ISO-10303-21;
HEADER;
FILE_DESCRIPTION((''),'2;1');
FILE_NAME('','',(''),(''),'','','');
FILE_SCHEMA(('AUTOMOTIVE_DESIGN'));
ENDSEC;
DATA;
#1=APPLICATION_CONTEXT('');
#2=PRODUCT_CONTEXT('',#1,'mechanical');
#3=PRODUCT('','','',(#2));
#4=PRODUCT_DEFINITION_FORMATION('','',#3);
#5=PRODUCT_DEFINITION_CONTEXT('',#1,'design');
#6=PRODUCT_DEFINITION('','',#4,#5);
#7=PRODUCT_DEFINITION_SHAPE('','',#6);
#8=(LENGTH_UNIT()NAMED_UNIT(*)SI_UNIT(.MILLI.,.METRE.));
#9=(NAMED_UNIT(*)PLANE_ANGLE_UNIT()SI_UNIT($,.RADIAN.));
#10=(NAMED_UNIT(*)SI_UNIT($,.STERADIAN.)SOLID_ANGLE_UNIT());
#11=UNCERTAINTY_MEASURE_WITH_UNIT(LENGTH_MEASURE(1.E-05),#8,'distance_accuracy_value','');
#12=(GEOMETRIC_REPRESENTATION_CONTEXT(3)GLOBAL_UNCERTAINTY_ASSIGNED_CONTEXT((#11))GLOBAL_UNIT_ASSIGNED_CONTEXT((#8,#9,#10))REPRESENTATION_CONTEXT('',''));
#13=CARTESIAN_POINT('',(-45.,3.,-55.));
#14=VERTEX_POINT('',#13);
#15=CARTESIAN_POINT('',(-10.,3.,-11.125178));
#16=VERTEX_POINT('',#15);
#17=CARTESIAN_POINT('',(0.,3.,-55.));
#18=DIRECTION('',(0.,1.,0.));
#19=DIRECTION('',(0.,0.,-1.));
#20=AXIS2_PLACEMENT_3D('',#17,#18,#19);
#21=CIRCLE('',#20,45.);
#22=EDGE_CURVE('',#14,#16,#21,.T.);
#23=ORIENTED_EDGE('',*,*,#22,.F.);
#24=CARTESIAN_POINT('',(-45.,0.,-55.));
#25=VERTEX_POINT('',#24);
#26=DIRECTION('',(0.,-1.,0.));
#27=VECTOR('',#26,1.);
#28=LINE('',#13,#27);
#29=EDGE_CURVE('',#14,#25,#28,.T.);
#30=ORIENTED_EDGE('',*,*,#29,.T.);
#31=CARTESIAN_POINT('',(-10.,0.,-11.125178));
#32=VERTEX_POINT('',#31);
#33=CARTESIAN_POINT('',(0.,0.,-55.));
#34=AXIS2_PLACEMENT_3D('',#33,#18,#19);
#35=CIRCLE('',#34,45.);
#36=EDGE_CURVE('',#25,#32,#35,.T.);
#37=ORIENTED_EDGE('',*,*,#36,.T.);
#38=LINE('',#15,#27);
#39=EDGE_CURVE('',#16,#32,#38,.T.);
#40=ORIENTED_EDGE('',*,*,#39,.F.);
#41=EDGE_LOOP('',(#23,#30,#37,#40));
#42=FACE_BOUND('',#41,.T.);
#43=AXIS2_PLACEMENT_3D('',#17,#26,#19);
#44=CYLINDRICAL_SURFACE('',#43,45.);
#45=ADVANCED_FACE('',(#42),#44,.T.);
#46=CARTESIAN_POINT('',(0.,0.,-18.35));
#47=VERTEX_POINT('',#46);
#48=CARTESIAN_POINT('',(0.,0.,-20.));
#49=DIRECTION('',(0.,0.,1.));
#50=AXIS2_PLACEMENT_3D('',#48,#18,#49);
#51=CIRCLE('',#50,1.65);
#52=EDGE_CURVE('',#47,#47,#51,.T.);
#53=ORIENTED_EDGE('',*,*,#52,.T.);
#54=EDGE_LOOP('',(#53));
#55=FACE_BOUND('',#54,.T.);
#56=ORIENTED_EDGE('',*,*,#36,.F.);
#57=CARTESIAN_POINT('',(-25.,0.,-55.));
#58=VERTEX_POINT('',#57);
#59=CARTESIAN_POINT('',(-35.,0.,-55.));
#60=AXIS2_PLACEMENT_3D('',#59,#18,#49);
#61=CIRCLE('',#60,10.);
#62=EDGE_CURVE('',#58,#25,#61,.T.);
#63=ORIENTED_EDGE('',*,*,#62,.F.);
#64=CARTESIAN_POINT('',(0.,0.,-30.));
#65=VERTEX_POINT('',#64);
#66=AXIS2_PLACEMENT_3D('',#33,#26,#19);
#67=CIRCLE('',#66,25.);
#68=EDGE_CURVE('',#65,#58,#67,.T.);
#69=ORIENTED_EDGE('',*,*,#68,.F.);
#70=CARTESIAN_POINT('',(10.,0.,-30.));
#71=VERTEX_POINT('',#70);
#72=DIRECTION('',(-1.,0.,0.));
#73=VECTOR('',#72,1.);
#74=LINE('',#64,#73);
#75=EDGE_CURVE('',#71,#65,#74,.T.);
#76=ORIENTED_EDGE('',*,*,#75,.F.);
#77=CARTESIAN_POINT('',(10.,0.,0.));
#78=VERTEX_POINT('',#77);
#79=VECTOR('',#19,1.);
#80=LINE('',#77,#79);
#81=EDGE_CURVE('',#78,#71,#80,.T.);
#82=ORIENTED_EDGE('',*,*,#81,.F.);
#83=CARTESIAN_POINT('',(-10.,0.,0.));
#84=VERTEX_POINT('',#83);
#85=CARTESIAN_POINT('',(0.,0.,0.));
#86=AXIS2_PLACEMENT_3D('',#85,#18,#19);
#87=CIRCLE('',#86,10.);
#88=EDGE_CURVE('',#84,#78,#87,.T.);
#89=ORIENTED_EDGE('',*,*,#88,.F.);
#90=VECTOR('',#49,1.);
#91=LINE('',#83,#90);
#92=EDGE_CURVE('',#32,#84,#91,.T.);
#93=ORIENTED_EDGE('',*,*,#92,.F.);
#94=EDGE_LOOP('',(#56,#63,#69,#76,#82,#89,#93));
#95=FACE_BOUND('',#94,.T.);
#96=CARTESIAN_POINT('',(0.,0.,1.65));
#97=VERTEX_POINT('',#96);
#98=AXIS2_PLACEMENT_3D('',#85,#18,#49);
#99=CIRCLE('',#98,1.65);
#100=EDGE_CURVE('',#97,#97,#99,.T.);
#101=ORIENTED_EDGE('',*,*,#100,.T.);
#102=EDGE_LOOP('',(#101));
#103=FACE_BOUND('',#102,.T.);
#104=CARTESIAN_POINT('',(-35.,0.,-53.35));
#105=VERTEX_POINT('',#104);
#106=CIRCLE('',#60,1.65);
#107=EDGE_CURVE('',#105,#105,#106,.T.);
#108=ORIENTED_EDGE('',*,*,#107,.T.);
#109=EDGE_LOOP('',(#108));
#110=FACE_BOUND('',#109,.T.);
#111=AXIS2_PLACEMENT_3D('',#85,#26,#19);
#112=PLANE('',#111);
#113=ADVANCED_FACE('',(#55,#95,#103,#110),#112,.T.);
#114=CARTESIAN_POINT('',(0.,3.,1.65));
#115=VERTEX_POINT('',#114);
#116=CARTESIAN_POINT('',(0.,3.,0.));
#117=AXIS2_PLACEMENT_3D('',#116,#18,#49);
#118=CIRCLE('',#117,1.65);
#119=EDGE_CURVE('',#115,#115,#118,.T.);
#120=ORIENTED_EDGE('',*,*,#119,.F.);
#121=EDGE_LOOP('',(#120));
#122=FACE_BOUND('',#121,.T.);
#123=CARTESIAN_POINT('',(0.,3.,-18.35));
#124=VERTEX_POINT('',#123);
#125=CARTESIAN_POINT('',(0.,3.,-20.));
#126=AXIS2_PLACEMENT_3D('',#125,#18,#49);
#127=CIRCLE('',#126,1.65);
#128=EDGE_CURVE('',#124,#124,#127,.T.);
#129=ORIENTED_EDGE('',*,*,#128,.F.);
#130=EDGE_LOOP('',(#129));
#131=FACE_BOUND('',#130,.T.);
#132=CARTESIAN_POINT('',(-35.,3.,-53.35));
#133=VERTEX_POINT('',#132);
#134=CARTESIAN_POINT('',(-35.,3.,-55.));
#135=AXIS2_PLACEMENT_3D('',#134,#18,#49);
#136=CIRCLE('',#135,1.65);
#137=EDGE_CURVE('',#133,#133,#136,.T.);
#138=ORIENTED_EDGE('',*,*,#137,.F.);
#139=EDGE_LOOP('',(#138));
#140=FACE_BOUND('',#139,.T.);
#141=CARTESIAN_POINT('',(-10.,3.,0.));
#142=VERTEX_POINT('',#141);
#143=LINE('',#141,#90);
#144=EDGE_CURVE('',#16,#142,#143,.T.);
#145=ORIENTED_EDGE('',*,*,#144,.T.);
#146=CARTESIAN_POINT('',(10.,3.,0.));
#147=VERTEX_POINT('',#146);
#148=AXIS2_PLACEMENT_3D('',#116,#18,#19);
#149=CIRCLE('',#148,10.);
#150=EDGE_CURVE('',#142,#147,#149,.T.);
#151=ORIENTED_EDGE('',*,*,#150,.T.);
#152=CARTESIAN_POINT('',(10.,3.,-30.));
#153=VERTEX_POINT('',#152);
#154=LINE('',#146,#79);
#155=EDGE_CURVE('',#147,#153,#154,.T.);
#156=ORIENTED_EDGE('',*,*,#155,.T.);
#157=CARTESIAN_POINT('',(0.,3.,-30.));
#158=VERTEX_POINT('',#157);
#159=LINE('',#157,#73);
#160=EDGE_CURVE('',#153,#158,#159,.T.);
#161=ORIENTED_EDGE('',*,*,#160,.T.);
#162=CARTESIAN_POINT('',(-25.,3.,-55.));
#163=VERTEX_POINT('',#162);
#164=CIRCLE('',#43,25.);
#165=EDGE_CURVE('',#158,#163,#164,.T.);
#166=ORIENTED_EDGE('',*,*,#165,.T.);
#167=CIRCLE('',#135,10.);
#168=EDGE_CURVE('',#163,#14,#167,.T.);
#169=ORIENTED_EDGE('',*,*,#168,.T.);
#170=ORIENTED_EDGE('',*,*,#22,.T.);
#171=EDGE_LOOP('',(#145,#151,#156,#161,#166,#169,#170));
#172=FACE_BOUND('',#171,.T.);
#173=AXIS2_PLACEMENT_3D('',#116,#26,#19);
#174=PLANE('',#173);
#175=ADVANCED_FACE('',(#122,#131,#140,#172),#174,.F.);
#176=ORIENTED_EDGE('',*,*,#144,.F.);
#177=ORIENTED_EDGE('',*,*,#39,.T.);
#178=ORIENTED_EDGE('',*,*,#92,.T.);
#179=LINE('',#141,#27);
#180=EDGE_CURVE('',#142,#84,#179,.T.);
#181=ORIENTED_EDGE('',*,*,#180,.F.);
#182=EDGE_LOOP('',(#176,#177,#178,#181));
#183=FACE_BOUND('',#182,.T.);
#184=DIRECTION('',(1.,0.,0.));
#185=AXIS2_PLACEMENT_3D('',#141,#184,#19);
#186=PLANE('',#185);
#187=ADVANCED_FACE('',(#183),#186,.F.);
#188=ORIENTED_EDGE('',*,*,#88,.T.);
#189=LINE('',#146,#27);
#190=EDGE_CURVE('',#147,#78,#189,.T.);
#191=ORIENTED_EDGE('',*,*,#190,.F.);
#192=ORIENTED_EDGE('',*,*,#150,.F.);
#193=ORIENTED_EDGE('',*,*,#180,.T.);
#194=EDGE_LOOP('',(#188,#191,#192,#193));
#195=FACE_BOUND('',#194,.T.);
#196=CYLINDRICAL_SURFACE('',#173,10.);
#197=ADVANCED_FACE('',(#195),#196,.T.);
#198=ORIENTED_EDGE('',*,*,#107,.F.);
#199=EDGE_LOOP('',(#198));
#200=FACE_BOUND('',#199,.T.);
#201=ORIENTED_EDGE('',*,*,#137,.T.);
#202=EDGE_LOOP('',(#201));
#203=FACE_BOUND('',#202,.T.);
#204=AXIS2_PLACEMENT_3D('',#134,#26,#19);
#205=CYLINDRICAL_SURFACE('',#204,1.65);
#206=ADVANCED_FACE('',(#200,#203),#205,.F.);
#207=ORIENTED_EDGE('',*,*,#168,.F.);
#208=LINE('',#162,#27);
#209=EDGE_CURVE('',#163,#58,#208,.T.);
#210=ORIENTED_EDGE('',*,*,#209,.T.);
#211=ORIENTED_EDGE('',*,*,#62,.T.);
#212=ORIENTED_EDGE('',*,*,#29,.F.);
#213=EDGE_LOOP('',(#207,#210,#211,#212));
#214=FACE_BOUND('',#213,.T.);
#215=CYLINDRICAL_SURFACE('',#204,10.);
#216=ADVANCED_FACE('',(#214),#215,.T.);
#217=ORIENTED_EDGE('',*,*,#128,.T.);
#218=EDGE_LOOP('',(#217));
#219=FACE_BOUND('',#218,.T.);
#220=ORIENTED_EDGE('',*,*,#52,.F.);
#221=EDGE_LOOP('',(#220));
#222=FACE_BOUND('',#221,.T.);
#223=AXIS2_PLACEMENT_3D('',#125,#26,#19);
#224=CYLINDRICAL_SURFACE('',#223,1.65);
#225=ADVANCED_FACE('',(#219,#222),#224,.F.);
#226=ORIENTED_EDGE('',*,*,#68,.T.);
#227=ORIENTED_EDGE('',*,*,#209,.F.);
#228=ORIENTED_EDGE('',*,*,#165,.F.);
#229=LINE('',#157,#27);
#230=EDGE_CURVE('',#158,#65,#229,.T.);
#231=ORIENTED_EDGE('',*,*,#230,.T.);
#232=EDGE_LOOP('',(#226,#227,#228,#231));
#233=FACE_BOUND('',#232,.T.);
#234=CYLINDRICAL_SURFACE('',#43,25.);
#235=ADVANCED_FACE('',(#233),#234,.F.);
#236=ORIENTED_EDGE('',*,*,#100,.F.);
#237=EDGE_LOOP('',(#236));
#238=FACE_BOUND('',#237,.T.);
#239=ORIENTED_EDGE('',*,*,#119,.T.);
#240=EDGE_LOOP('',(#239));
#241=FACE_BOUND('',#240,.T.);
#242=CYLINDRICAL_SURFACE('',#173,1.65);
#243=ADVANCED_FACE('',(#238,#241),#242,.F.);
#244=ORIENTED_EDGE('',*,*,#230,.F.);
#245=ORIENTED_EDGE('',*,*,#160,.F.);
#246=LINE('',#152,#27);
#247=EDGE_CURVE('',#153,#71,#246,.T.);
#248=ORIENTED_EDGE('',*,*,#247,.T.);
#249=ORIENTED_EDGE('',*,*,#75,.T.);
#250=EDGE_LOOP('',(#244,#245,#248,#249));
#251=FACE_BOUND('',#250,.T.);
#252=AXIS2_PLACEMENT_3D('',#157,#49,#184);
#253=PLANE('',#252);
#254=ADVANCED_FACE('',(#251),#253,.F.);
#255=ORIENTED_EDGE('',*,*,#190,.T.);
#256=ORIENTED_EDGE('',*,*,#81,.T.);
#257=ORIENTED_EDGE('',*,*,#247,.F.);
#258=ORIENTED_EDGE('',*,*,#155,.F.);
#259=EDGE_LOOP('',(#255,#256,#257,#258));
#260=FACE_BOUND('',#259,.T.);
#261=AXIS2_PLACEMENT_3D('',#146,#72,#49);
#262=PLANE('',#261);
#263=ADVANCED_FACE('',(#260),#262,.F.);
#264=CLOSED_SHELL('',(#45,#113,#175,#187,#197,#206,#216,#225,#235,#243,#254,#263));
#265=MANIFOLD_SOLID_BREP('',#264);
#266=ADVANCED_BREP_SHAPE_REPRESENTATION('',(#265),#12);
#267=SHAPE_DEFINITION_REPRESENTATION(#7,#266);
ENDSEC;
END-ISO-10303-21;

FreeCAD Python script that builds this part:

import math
import FreeCAD as App
import Part
import Sketcher
from FreeCAD import Vector

doc = App.newDocument("Part")
body = doc.addObject("PartDesign::Body", "Body")

sketch1 = body.newObject("Sketcher::SketchObject", "Sketch")
sketch1.AttachmentSupport = (doc.getObject("XZ_Plane"), [""])
sketch1.MapMode = "FlatFace"
sketch1.addGeometry([
    Part.LineSegment(Vector(10, 0, 0), Vector(10, -30, 0)),
    Part.LineSegment(Vector(10, -30, 0), Vector(0, -30, 0)),
    Part.ArcOfCircle(Part.Circle(Vector(0, -55, 0), Vector(0, 0, 1), 25), math.radians(90), math.radians(180)),
    Part.ArcOfCircle(Part.Circle(Vector(-35, -55, 0), Vector(0, 0, 1), 10), math.radians(180), math.radians(360)),
    Part.ArcOfCircle(Part.Circle(Vector(0, -55, 0), Vector(0, 0, 1), 45), math.radians(103), math.radians(180)),
    Part.LineSegment(Vector(-10, -11.1, 0), Vector(-10, 0, 0)),
    Part.ArcOfCircle(Part.Circle(Vector(0, 0, 0), Vector(0, 0, 1), 10), math.radians(0), math.radians(180)),
    Part.Circle(Vector(0, 0, 0), Vector(0, 0, 1), 1.6),
    Part.Circle(Vector(0, -20, 0), Vector(0, 0, 1), 1.6),
    Part.Circle(Vector(-35, -55, 0), Vector(0, 0, 1), 1.6),
], False)
sketch1.addConstraint([
    Sketcher.Constraint("Coincident", 0, 2, 1, 1),
    Sketcher.Constraint("Tangent", 1, 2, 2, 1),
    Sketcher.Constraint("Tangent", 2, 2, 3, 2),
    Sketcher.Constraint("Tangent", 3, 1, 4, 2),
    Sketcher.Constraint("Coincident", 4, 1, 5, 1),
    Sketcher.Constraint("Tangent", 5, 2, 6, 2),
    Sketcher.Constraint("Tangent", 6, 1, 0, 1),
    Sketcher.Constraint("Vertical", 0),
    Sketcher.Constraint("Horizontal", 1),
    Sketcher.Constraint("Vertical", 5),
    Sketcher.Constraint("Coincident", 6, 3, -1, 1),
    Sketcher.Constraint("Coincident", 7, 3, -1, 1),
    Sketcher.Constraint("Coincident", 4, 3, 2, 3),
    Sketcher.Constraint("Coincident", 9, 3, 3, 3),
    Sketcher.Constraint("Equal", 3, 6),
    Sketcher.Constraint("Equal", 7, 8),
    Sketcher.Constraint("Equal", 8, 9),
    Sketcher.Constraint("PointOnObject", 2, 3, -2),
    Sketcher.Constraint("PointOnObject", 8, 3, -2),
    Sketcher.Constraint("Horizontal", 2, 3, 3, 3),
    Sketcher.Constraint("Radius", 2, 25.0),
    Sketcher.Constraint("Radius", 3, 10.0),
    Sketcher.Constraint("Diameter", 7, 3.3),
    Sketcher.Constraint("DistanceY", 0, 2, 0, 1, 30.0),
    Sketcher.Constraint("DistanceY", 8, 3, -1, 1, 20.0),
])
pad1 = body.newObject("PartDesign::Pad", "Pad")
pad1.Profile = sketch1
pad1.Length = 3
pad1.Reversed = True

doc.recompute()
